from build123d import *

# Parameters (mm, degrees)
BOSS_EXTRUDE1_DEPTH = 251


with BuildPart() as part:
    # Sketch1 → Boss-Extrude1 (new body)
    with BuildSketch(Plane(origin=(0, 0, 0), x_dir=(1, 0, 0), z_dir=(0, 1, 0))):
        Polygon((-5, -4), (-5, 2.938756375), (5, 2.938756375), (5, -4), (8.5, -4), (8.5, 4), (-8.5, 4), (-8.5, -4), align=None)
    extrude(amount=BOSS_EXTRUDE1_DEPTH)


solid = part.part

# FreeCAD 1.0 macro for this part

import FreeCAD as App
import Part
import Sketcher

doc = App.newDocument("Part")
body = doc.addObject("PartDesign::Body", "Body")

sketch1 = body.newObject("Sketcher::SketchObject", "Sketch")
sketch1.AttachmentSupport = (doc.getObject("XZ_Plane"), [""])
sketch1.MapMode = "FlatFace"
sketch1.addGeometry([
    Part.LineSegment(App.Vector(-5, 4, 0), App.Vector(-5, -2.9, 0)),
    Part.LineSegment(App.Vector(-5, -2.9, 0), App.Vector(5, -2.9, 0)),
    Part.LineSegment(App.Vector(5, -2.9, 0), App.Vector(5, 4, 0)),
    Part.LineSegment(App.Vector(5, 4, 0), App.Vector(8.5, 4, 0)),
    Part.LineSegment(App.Vector(8.5, 4, 0), App.Vector(8.5, -4, 0)),
    Part.LineSegment(App.Vector(8.5, -4, 0), App.Vector(-8.5, -4, 0)),
    Part.LineSegment(App.Vector(-8.5, -4, 0), App.Vector(-8.5, 4, 0)),
    Part.LineSegment(App.Vector(-8.5, 4, 0), App.Vector(-5, 4, 0)),
], False)
sketch1.addConstraint([
    Sketcher.Constraint("Coincident", 0, 2, 1, 1),
    Sketcher.Constraint("Coincident", 1, 2, 2, 1),
    Sketcher.Constraint("Coincident", 2, 2, 3, 1),
    Sketcher.Constraint("Coincident", 3, 2, 4, 1),
    Sketcher.Constraint("Coincident", 4, 2, 5, 1),
    Sketcher.Constraint("Coincident", 5, 2, 6, 1),
    Sketcher.Constraint("Coincident", 6, 2, 7, 1),
    Sketcher.Constraint("Coincident", 7, 2, 0, 1),
    Sketcher.Constraint("Vertical", 0),
    Sketcher.Constraint("Horizontal", 1),
    Sketcher.Constraint("Vertical", 2),
    Sketcher.Constraint("Horizontal", 3),
    Sketcher.Constraint("Vertical", 4),
    Sketcher.Constraint("Horizontal", 5),
    Sketcher.Constraint("Vertical", 6),
    Sketcher.Constraint("Horizontal", 7),
    Sketcher.Constraint("Symmetric", 3, 2, 5, 2, -1, 1),
    Sketcher.Constraint("Symmetric", 2, 2, 7, 2, -2),
    Sketcher.Constraint("DistanceX", 1, 1, 1, 2, 10.0),
    Sketcher.Constraint("DistanceX", 5, 2, 5, 1, 17.0),
    Sketcher.Constraint("DistanceY", 4, 2, 4, 1, 8.0),
    Sketcher.Constraint("DistanceY", 0, 2, 0, 1, 6.938756),
])
pad1 = body.newObject("PartDesign::Pad", "Pad")
pad1.Profile = sketch1
pad1.Length = 251
pad1.Reversed = True

doc.recompute()
